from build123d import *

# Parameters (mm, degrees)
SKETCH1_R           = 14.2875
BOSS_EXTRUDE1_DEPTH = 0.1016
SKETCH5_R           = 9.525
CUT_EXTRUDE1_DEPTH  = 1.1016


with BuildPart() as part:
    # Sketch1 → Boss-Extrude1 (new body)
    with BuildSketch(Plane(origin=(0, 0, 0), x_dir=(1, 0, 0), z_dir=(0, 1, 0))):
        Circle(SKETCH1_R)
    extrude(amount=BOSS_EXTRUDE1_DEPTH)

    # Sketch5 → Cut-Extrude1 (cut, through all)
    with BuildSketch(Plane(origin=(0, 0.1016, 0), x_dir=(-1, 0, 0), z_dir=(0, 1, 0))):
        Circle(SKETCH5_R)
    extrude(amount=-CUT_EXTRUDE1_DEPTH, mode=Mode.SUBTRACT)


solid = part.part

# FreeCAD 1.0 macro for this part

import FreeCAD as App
import Part
import Sketcher
Q = App.Units.Quantity

doc = App.newDocument("Part")
params = doc.addObject("Spreadsheet::Sheet", "Params")
for row, (alias, value) in enumerate([
    ("sketch1_diameter", "1.125 in"),
    ("pad1_length", "0.004 in"),
    ("sketch2_diameter", "0.75 in"),
], start=1):
    params.set(f"A{row}", alias)
    params.set(f"B{row}", "=" + value)
    params.setAlias(f"B{row}", alias)

body = doc.addObject("PartDesign::Body", "Body")

sketch1 = body.newObject("Sketcher::SketchObject", "Sketch")
sketch1.AttachmentSupport = (doc.getObject("XZ_Plane"), [""])
sketch1.MapMode = "FlatFace"
sketch1.addGeometry(Part.Circle(App.Vector(0, 0, 0), App.Vector(0, 0, 1), 14), False)
sketch1.addConstraint(Sketcher.Constraint("Coincident", 0, 3, -1, 1))
sketch1.addConstraint(Sketcher.Constraint("Diameter", 0, Q("1.125 in")))
sketch1.setExpression("Constraints[1]", "Params.sketch1_diameter")
pad1 = body.newObject("PartDesign::Pad", "Pad")
pad1.Profile = sketch1
pad1.setExpression("Length", "Params.pad1_length")
pad1.Reversed = True

sketch2 = body.newObject("Sketcher::SketchObject", "Sketch001")
sketch2.AttachmentSupport = (doc.getObject("XZ_Plane"), [""])
sketch2.MapMode = "FlatFace"
sketch2.AttachmentOffset = App.Placement(App.Vector(0, 0, -0.004 * 25.4), App.Rotation())
sketch2.addGeometry(Part.Circle(App.Vector(0, 0, 0), App.Vector(0, 0, 1), 10), False)
sketch2.addConstraint(Sketcher.Constraint("Coincident", 0, 3, -1, 1))
sketch2.addConstraint(Sketcher.Constraint("Diameter", 0, Q("0.75 in")))
sketch2.setExpression("Constraints[1]", "Params.sketch2_diameter")
pocket1 = body.newObject("PartDesign::Pocket", "Pocket")
pocket1.Profile = sketch2
pocket1.Type = "ThroughAll"
pocket1.Reversed = True

doc.recompute()
